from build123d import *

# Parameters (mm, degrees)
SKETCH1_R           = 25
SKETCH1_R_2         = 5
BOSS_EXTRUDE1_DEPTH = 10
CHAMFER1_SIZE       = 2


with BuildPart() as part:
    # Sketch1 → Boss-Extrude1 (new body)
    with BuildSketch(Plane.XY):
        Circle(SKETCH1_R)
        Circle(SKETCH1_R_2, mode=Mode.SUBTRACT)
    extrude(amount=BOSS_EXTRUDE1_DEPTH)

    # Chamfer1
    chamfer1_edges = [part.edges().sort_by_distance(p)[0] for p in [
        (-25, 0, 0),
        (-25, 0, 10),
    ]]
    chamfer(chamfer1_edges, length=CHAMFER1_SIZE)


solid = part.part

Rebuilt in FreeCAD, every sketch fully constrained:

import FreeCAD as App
import Part
import Sketcher

V = App.Vector
Q = App.Units.Quantity


def edges_at(feature, points):
    """Names of the edges that pass closest to the given points."""
    edges = feature.Shape.Edges
    near = lambda p: min(range(len(edges)), key=lambda i: edges[i].distToShape(Part.Vertex(*p))[0])
    return sorted({f"Edge{near(p) + 1}" for p in points})

doc = App.newDocument("Part")
params = doc.addObject("Spreadsheet::Sheet", "Params")
for row, (alias, value) in enumerate([
    ("sketch1_diameter", "50 mm"),
    ("sketch1_diameter2", "10 mm"),
    ("pad1_length", "10 mm"),
    ("chamfer_size", "2 mm"),
], start=1):
    params.set(f"A{row}", alias)
    params.set(f"B{row}", "=" + value)
    params.setAlias(f"B{row}", alias)

body = doc.addObject("PartDesign::Body", "Body")

# Sketch on XY plane
sketch1 = doc.addObject("Sketcher::SketchObject", "Sketch")
body.addObject(sketch1)
sketch1.AttachmentSupport = (doc.XY_Plane, [""])
sketch1.MapMode = "FlatFace"
sketch1.addGeometry([
    Part.Circle(V(0, 0, 0), V(0, 0, 1), 25),
    Part.Circle(V(0, 0, 0), V(0, 0, 1), 5),
], False)
sketch1.addConstraint([
    Sketcher.Constraint("Coincident", 0, 3, -1, 1),
    Sketcher.Constraint("Coincident", 1, 3, -1, 1),
    Sketcher.Constraint("Diameter", 0, Q("50 mm")),
    Sketcher.Constraint("Diameter", 1, Q("10 mm")),
])
sketch1.setExpression("Constraints[2]", "Params.sketch1_diameter")
sketch1.setExpression("Constraints[3]", "Params.sketch1_diameter2")
pad1 = doc.addObject("PartDesign::Pad", "Pad")
body.addObject(pad1)
pad1.Profile = sketch1
pad1.setExpression("Length", "Params.pad1_length")
doc.recompute()

chamfer = doc.addObject("PartDesign::Chamfer", "Chamfer")
body.addObject(chamfer)
chamfer.Base = (pad1, edges_at(pad1, [(-25, 0, 0), (-25, 0, 10)]))
chamfer.setExpression("Size", "Params.chamfer_size")

doc.recompute()
